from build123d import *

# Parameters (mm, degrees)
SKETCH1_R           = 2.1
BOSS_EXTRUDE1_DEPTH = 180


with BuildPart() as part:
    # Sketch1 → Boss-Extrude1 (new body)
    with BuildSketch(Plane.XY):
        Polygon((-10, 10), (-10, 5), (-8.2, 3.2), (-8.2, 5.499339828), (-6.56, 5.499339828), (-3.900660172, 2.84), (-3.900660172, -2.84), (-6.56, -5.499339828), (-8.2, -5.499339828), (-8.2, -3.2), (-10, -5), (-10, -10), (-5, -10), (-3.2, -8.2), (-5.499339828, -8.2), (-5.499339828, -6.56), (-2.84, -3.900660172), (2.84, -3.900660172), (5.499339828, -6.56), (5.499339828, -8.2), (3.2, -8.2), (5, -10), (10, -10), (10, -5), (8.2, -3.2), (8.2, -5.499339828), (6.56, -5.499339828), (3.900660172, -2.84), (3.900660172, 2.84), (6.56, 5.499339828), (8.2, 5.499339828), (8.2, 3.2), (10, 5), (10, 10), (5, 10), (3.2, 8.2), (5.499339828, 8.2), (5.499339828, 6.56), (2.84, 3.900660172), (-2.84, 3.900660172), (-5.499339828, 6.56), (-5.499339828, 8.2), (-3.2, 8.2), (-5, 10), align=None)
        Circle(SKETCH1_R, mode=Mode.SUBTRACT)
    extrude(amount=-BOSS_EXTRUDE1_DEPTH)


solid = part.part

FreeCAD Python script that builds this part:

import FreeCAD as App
import Part
import Sketcher

doc = App.newDocument("Part")
body = doc.addObject("PartDesign::Body", "Body")

# Sketch on XY plane
sketch1 = doc.addObject("Sketcher::SketchObject", "Sketch")
body.addObject(sketch1)
sketch1.AttachmentSupport = (doc.XY_Plane, [""])
sketch1.MapMode = "FlatFace"
sketch1.addGeometry(Part.LineSegment(App.Vector(-10, 10, 0), App.Vector(-10, 5, 0)), False)
sketch1.addGeometry(Part.LineSegment(App.Vector(-10, 5, 0), App.Vector(-8.2, 3.2, 0)), False)
sketch1.addGeometry(Part.LineSegment(App.Vector(-8.2, 3.2, 0), App.Vector(-8.2, 5.49934, 0)), False)
sketch1.addGeometry(Part.LineSegment(App.Vector(-8.2, 5.49934, 0), App.Vector(-6.56, 5.49934, 0)), False)
sketch1.addGeometry(Part.LineSegment(App.Vector(-6.56, 5.49934, 0), App.Vector(-3.90066, 2.84, 0)), False)
sketch1.addGeometry(Part.LineSegment(App.Vector(-3.90066, 2.84, 0), App.Vector(-3.90066, -2.84, 0)), False)
sketch1.addGeometry(Part.LineSegment(App.Vector(-3.90066, -2.84, 0), App.Vector(-6.56, -5.49934, 0)), False)
sketch1.addGeometry(Part.LineSegment(App.Vector(-6.56, -5.49934, 0), App.Vector(-8.2, -5.49934, 0)), False)
sketch1.addGeometry(Part.LineSegment(App.Vector(-8.2, -5.49934, 0), App.Vector(-8.2, -3.2, 0)), False)
sketch1.addGeometry(Part.LineSegment(App.Vector(-8.2, -3.2, 0), App.Vector(-10, -5, 0)), False)
sketch1.addGeometry(Part.LineSegment(App.Vector(-10, -5, 0), App.Vector(-10, -10, 0)), False)
sketch1.addGeometry(Part.LineSegment(App.Vector(-10, -10, 0), App.Vector(-5, -10, 0)), False)
sketch1.addGeometry(Part.LineSegment(App.Vector(-5, -10, 0), App.Vector(-3.2, -8.2, 0)), False)
sketch1.addGeometry(Part.LineSegment(App.Vector(-3.2, -8.2, 0), App.Vector(-5.49934, -8.2, 0)), False)
sketch1.addGeometry(Part.LineSegment(App.Vector(-5.49934, -8.2, 0), App.Vector(-5.49934, -6.56, 0)), False)
sketch1.addGeometry(Part.LineSegment(App.Vector(-5.49934, -6.56, 0), App.Vector(-2.84, -3.90066, 0)), False)
sketch1.addGeometry(Part.LineSegment(App.Vector(-2.84, -3.90066, 0), App.Vector(2.84, -3.90066, 0)), False)
sketch1.addGeometry(Part.LineSegment(App.Vector(2.84, -3.90066, 0), App.Vector(5.49934, -6.56, 0)), False)
sketch1.addGeometry(Part.LineSegment(App.Vector(5.49934, -6.56, 0), App.Vector(5.49934, -8.2, 0)), False)
sketch1.addGeometry(Part.LineSegment(App.Vector(5.49934, -8.2, 0), App.Vector(3.2, -8.2, 0)), False)
sketch1.addGeometry(Part.LineSegment(App.Vector(3.2, -8.2, 0), App.Vector(5, -10, 0)), False)
sketch1.addGeometry(Part.LineSegment(App.Vector(5, -10, 0), App.Vector(10, -10, 0)), False)
sketch1.addGeometry(Part.LineSegment(App.Vector(10, -10, 0), App.Vector(10, -5, 0)), False)
sketch1.addGeometry(Part.LineSegment(App.Vector(10, -5, 0), App.Vector(8.2, -3.2, 0)), False)
sketch1.addGeometry(Part.LineSegment(App.Vector(8.2, -3.2, 0), App.Vector(8.2, -5.49934, 0)), False)
sketch1.addGeometry(Part.LineSegment(App.Vector(8.2, -5.49934, 0), App.Vector(6.56, -5.49934, 0)), False)
sketch1.addGeometry(Part.LineSegment(App.Vector(6.56, -5.49934, 0), App.Vector(3.90066, -2.84, 0)), False)
sketch1.addGeometry(Part.LineSegment(App.Vector(3.90066, -2.84, 0), App.Vector(3.90066, 2.84, 0)), False)
sketch1.addGeometry(Part.LineSegment(App.Vector(3.90066, 2.84, 0), App.Vector(6.56, 5.49934, 0)), False)
sketch1.addGeometry(Part.LineSegment(App.Vector(6.56, 5.49934, 0), App.Vector(8.2, 5.49934, 0)), False)
sketch1.addGeometry(Part.LineSegment(App.Vector(8.2, 5.49934, 0), App.Vector(8.2, 3.2, 0)), False)
sketch1.addGeometry(Part.LineSegment(App.Vector(8.2, 3.2, 0), App.Vector(10, 5, 0)), False)
sketch1.addGeometry(Part.LineSegment(App.Vector(10, 5, 0), App.Vector(10, 10, 0)), False)
sketch1.addGeometry(Part.LineSegment(App.Vector(10, 10, 0), App.Vector(5, 10, 0)), False)
sketch1.addGeometry(Part.LineSegment(App.Vector(5, 10, 0), App.Vector(3.2, 8.2, 0)), False)
sketch1.addGeometry(Part.LineSegment(App.Vector(3.2, 8.2, 0), App.Vector(5.49934, 8.2, 0)), False)
sketch1.addGeometry(Part.LineSegment(App.Vector(5.49934, 8.2, 0), App.Vector(5.49934, 6.56, 0)), False)
sketch1.addGeometry(Part.LineSegment(App.Vector(5.49934, 6.56, 0), App.Vector(2.84, 3.90066, 0)), False)
sketch1.addGeometry(Part.LineSegment(App.Vector(2.84, 3.90066, 0), App.Vector(-2.84, 3.90066, 0)), False)
sketch1.addGeometry(Part.LineSegment(App.Vector(-2.84, 3.90066, 0), App.Vector(-5.49934, 6.56, 0)), False)
sketch1.addGeometry(Part.LineSegment(App.Vector(-5.49934, 6.56, 0), App.Vector(-5.49934, 8.2, 0)), False)
sketch1.addGeometry(Part.LineSegment(App.Vector(-5.49934, 8.2, 0), App.Vector(-3.2, 8.2, 0)), False)
sketch1.addGeometry(Part.LineSegment(App.Vector(-3.2, 8.2, 0), App.Vector(-5, 10, 0)), False)
sketch1.addGeometry(Part.LineSegment(App.Vector(-5, 10, 0), App.Vector(-10, 10, 0)), False)
sketch1.addGeometry(Part.Circle(App.Vector(0, 0, 0), App.Vector(0, 0, 1), 2.1), False)
sketch1.addConstraint(Sketcher.Constraint("Coincident", 0, 2, 1, 1))
sketch1.addConstraint(Sketcher.Constraint("Coincident", 1, 2, 2, 1))
sketch1.addConstraint(Sketcher.Constraint("Coincident", 2, 2, 3, 1))
sketch1.addConstraint(Sketcher.Constraint("Coincident", 3, 2, 4, 1))
sketch1.addConstraint(Sketcher.Constraint("Coincident", 4, 2, 5, 1))
sketch1.addConstraint(Sketcher.Constraint("Coincident", 5, 2, 6, 1))
sketch1.addConstraint(Sketcher.Constraint("Coincident", 6, 2, 7, 1))
sketch1.addConstraint(Sketcher.Constraint("Coincident", 7, 2, 8, 1))
sketch1.addConstraint(Sketcher.Constraint("Coincident", 8, 2, 9, 1))
sketch1.addConstraint(Sketcher.Constraint("Coincident", 9, 2, 10, 1))
sketch1.addConstraint(Sketcher.Constraint("Coincident", 10, 2, 11, 1))
sketch1.addConstraint(Sketcher.Constraint("Coincident", 11, 2, 12, 1))
sketch1.addConstraint(Sketcher.Constraint("Coincident", 12, 2, 13, 1))
sketch1.addConstraint(Sketcher.Constraint("Coincident", 13, 2, 14, 1))
sketch1.addConstraint(Sketcher.Constraint("Coincident", 14, 2, 15, 1))
sketch1.addConstraint(Sketcher.Constraint("Coincident", 15, 2, 16, 1))
sketch1.addConstraint(Sketcher.Constraint("Coincident", 16, 2, 17, 1))
sketch1.addConstraint(Sketcher.Constraint("Coincident", 17, 2, 18, 1))
sketch1.addConstraint(Sketcher.Constraint("Coincident", 18, 2, 19, 1))
sketch1.addConstraint(Sketcher.Constraint("Coincident", 19, 2, 20, 1))
sketch1.addConstraint(Sketcher.Constraint("Coincident", 20, 2, 21, 1))
sketch1.addConstraint(Sketcher.Constraint("Coincident", 21, 2, 22, 1))
sketch1.addConstraint(Sketcher.Constraint("Coincident", 22, 2, 23, 1))
sketch1.addConstraint(Sketcher.Constraint("Coincident", 23, 2, 24, 1))
sketch1.addConstraint(Sketcher.Constraint("Coincident", 24, 2, 25, 1))
sketch1.addConstraint(Sketcher.Constraint("Coincident", 25, 2, 26, 1))
sketch1.addConstraint(Sketcher.Constraint("Coincident", 26, 2, 27, 1))
sketch1.addConstraint(Sketcher.Constraint("Coincident", 27, 2, 28, 1))
sketch1.addConstraint(Sketcher.Constraint("Coincident", 28, 2, 29, 1))
sketch1.addConstraint(Sketcher.Constraint("Coincident", 29, 2, 30, 1))
sketch1.addConstraint(Sketcher.Constraint("Coincident", 30, 2, 31, 1))
sketch1.addConstraint(Sketcher.Constraint("Coincident", 31, 2, 32, 1))
sketch1.addConstraint(Sketcher.Constraint("Coincident", 32, 2, 33, 1))
sketch1.addConstraint(Sketcher.Constraint("Coincident", 33, 2, 34, 1))
sketch1.addConstraint(Sketcher.Constraint("Coincident", 34, 2, 35, 1))
sketch1.addConstraint(Sketcher.Constraint("Coincident", 35, 2, 36, 1))
sketch1.addConstraint(Sketcher.Constraint("Coincident", 36, 2, 37, 1))
sketch1.addConstraint(Sketcher.Constraint("Coincident", 37, 2, 38, 1))
sketch1.addConstraint(Sketcher.Constraint("Coincident", 38, 2, 39, 1))
sketch1.addConstraint(Sketcher.Constraint("Coincident", 39, 2, 40, 1))
sketch1.addConstraint(Sketcher.Constraint("Coincident", 40, 2, 41, 1))
sketch1.addConstraint(Sketcher.Constraint("Coincident", 41, 2, 42, 1))
sketch1.addConstraint(Sketcher.Constraint("Coincident", 42, 2, 43, 1))
sketch1.addConstraint(Sketcher.Constraint("Coincident", 43, 2, 0, 1))
sketch1.addConstraint(Sketcher.Constraint("Vertical", 0))
sketch1.addConstraint(Sketcher.Constraint("Vertical", 2))
sketch1.addConstraint(Sketcher.Constraint("Horizontal", 3))
sketch1.addConstraint(Sketcher.Constraint("Vertical", 5))
sketch1.addConstraint(Sketcher.Constraint("Horizontal", 7))
sketch1.addConstraint(Sketcher.Constraint("Vertical", 8))
sketch1.addConstraint(Sketcher.Constraint("Vertical", 10))
sketch1.addConstraint(Sketcher.Constraint("Horizontal", 11))
sketch1.addConstraint(Sketcher.Constraint("Horizontal", 13))
sketch1.addConstraint(Sketcher.Constraint("Vertical", 14))
sketch1.addConstraint(Sketcher.Constraint("Horizontal", 16))
sketch1.addConstraint(Sketcher.Constraint("Vertical", 18))
sketch1.addConstraint(Sketcher.Constraint("Horizontal", 19))
sketch1.addConstraint(Sketcher.Constraint("Horizontal", 21))
sketch1.addConstraint(Sketcher.Constraint("Vertical", 22))
sketch1.addConstraint(Sketcher.Constraint("Vertical", 24))
sketch1.addConstraint(Sketcher.Constraint("Horizontal", 25))
sketch1.addConstraint(Sketcher.Constraint("Vertical", 27))
sketch1.addConstraint(Sketcher.Constraint("Horizontal", 29))
sketch1.addConstraint(Sketcher.Constraint("Vertical", 30))
sketch1.addConstraint(Sketcher.Constraint("Vertical", 32))
sketch1.addConstraint(Sketcher.Constraint("Horizontal", 33))
sketch1.addConstraint(Sketcher.Constraint("Horizontal", 35))
sketch1.addConstraint(Sketcher.Constraint("Vertical", 36))
sketch1.addConstraint(Sketcher.Constraint("Horizontal", 38))
sketch1.addConstraint(Sketcher.Constraint("Vertical", 40))
sketch1.addConstraint(Sketcher.Constraint("Horizontal", 41))
sketch1.addConstraint(Sketcher.Constraint("Horizontal", 43))
sketch1.addConstraint(Sketcher.Constraint("Coincident", 44, 3, -1, 1))
sketch1.addConstraint(Sketcher.Constraint("Symmetric", 0, 2, 22, 2, -1, 1))
sketch1.addConstraint(Sketcher.Constraint("Symmetric", 1, 2, 23, 2, -1, 1))
sketch1.addConstraint(Sketcher.Constraint("Symmetric", 3, 2, 25, 2, -1, 1))
sketch1.addConstraint(Sketcher.Constraint("Symmetric", 4, 2, 26, 2, -1, 1))
sketch1.addConstraint(Sketcher.Constraint("Symmetric", 6, 2, 28, 2, -1, 1))
sketch1.addConstraint(Sketcher.Constraint("Symmetric", 8, 2, 30, 2, -1, 1))
sketch1.addConstraint(Sketcher.Constraint("Symmetric", 9, 2, 31, 2, -1, 1))
sketch1.addConstraint(Sketcher.Constraint("Symmetric", 11, 2, 33, 2, -1, 1))
sketch1.addConstraint(Sketcher.Constraint("Symmetric", 12, 2, 34, 2, -1, 1))
sketch1.addConstraint(Sketcher.Constraint("Symmetric", 14, 2, 36, 2, -1, 1))
sketch1.addConstraint(Sketcher.Constraint("Symmetric", 15, 2, 37, 2, -1, 1))
sketch1.addConstraint(Sketcher.Constraint("Symmetric", 17, 2, 39, 2, -1, 1))
sketch1.addConstraint(Sketcher.Constraint("Symmetric", 19, 2, 41, 2, -1, 1))
sketch1.addConstraint(Sketcher.Constraint("Symmetric", 20, 2, 42, 2, -1, 1))
sketch1.addConstraint(Sketcher.Constraint("Symmetric", 14, 2, 17, 2, -2))
sketch1.addConstraint(Sketcher.Constraint("Symmetric", 12, 2, 19, 2, -2))
sketch1.addConstraint(Sketcher.Constraint("Symmetric", 11, 2, 20, 2, -2))
sketch1.addConstraint(Sketcher.Constraint("Symmetric", 9, 2, 22, 2, -2))
sketch1.addConstraint(Sketcher.Constraint("Symmetric", 8, 2, 23, 2, -2))
sketch1.addConstraint(Sketcher.Constraint("Symmetric", 6, 2, 25, 2, -2))
sketch1.addConstraint(Sketcher.Constraint("Parallel", 1, 4))
sketch1.addConstraint(Sketcher.Constraint("Perpendicular", 4, 6))
sketch1.addConstraint(Sketcher.Constraint("Parallel", 6, 9))
sketch1.addConstraint(Sketcher.Constraint("Parallel", 9, 12))
sketch1.addConstraint(Sketcher.Constraint("Parallel", 12, 15))
sketch1.addConstraint(Sketcher.Constraint("Perpendicular", 15, 17))
sketch1.addConstraint(Sketcher.Constraint("Perpendicular", 26, 28))
sketch1.addConstraint(Sketcher.Constraint("Perpendicular", 37, 39))
sketch1.addConstraint(Sketcher.Constraint("Equal", 43, 0))
sketch1.addConstraint(Sketcher.Constraint("Equal", 41, 2))
sketch1.addConstraint(Sketcher.Constraint("Equal", 38, 5))
sketch1.addConstraint(Sketcher.Constraint("Equal", 29, 14))
sketch1.addConstraint(Sketcher.Constraint("Equal", 9, 12))
sketch1.addConstraint(Sketcher.Constraint("Equal", 6, 15))
sketch1.addConstraint(Sketcher.Constraint("Diameter", 44, 4.2))
sketch1.addConstraint(Sketcher.Constraint("DistanceX", 11, 1, 11, 2, 5.0))
sketch1.addConstraint(Sketcher.Constraint("DistanceX", 0, 2, -1, 1, 10.0))
sketch1.addConstraint(Sketcher.Constraint("DistanceX", 3, 1, 3, 2, 1.64))
sketch1.addConstraint(Sketcher.Constraint("DistanceX", 16, 1, 16, 2, 5.68))
sketch1.addConstraint(Sketcher.Constraint("DistanceX", 1, 2, -1, 1, 8.2))
sketch1.addConstraint(Sketcher.Constraint("DistanceX", 13, 2, 13, 1, 2.29934))
pad1 = doc.addObject("PartDesign::Pad", "Pad")
body.addObject(pad1)
pad1.Profile = sketch1
pad1.Length = 180
pad1.Reversed = True

doc.recompute()
